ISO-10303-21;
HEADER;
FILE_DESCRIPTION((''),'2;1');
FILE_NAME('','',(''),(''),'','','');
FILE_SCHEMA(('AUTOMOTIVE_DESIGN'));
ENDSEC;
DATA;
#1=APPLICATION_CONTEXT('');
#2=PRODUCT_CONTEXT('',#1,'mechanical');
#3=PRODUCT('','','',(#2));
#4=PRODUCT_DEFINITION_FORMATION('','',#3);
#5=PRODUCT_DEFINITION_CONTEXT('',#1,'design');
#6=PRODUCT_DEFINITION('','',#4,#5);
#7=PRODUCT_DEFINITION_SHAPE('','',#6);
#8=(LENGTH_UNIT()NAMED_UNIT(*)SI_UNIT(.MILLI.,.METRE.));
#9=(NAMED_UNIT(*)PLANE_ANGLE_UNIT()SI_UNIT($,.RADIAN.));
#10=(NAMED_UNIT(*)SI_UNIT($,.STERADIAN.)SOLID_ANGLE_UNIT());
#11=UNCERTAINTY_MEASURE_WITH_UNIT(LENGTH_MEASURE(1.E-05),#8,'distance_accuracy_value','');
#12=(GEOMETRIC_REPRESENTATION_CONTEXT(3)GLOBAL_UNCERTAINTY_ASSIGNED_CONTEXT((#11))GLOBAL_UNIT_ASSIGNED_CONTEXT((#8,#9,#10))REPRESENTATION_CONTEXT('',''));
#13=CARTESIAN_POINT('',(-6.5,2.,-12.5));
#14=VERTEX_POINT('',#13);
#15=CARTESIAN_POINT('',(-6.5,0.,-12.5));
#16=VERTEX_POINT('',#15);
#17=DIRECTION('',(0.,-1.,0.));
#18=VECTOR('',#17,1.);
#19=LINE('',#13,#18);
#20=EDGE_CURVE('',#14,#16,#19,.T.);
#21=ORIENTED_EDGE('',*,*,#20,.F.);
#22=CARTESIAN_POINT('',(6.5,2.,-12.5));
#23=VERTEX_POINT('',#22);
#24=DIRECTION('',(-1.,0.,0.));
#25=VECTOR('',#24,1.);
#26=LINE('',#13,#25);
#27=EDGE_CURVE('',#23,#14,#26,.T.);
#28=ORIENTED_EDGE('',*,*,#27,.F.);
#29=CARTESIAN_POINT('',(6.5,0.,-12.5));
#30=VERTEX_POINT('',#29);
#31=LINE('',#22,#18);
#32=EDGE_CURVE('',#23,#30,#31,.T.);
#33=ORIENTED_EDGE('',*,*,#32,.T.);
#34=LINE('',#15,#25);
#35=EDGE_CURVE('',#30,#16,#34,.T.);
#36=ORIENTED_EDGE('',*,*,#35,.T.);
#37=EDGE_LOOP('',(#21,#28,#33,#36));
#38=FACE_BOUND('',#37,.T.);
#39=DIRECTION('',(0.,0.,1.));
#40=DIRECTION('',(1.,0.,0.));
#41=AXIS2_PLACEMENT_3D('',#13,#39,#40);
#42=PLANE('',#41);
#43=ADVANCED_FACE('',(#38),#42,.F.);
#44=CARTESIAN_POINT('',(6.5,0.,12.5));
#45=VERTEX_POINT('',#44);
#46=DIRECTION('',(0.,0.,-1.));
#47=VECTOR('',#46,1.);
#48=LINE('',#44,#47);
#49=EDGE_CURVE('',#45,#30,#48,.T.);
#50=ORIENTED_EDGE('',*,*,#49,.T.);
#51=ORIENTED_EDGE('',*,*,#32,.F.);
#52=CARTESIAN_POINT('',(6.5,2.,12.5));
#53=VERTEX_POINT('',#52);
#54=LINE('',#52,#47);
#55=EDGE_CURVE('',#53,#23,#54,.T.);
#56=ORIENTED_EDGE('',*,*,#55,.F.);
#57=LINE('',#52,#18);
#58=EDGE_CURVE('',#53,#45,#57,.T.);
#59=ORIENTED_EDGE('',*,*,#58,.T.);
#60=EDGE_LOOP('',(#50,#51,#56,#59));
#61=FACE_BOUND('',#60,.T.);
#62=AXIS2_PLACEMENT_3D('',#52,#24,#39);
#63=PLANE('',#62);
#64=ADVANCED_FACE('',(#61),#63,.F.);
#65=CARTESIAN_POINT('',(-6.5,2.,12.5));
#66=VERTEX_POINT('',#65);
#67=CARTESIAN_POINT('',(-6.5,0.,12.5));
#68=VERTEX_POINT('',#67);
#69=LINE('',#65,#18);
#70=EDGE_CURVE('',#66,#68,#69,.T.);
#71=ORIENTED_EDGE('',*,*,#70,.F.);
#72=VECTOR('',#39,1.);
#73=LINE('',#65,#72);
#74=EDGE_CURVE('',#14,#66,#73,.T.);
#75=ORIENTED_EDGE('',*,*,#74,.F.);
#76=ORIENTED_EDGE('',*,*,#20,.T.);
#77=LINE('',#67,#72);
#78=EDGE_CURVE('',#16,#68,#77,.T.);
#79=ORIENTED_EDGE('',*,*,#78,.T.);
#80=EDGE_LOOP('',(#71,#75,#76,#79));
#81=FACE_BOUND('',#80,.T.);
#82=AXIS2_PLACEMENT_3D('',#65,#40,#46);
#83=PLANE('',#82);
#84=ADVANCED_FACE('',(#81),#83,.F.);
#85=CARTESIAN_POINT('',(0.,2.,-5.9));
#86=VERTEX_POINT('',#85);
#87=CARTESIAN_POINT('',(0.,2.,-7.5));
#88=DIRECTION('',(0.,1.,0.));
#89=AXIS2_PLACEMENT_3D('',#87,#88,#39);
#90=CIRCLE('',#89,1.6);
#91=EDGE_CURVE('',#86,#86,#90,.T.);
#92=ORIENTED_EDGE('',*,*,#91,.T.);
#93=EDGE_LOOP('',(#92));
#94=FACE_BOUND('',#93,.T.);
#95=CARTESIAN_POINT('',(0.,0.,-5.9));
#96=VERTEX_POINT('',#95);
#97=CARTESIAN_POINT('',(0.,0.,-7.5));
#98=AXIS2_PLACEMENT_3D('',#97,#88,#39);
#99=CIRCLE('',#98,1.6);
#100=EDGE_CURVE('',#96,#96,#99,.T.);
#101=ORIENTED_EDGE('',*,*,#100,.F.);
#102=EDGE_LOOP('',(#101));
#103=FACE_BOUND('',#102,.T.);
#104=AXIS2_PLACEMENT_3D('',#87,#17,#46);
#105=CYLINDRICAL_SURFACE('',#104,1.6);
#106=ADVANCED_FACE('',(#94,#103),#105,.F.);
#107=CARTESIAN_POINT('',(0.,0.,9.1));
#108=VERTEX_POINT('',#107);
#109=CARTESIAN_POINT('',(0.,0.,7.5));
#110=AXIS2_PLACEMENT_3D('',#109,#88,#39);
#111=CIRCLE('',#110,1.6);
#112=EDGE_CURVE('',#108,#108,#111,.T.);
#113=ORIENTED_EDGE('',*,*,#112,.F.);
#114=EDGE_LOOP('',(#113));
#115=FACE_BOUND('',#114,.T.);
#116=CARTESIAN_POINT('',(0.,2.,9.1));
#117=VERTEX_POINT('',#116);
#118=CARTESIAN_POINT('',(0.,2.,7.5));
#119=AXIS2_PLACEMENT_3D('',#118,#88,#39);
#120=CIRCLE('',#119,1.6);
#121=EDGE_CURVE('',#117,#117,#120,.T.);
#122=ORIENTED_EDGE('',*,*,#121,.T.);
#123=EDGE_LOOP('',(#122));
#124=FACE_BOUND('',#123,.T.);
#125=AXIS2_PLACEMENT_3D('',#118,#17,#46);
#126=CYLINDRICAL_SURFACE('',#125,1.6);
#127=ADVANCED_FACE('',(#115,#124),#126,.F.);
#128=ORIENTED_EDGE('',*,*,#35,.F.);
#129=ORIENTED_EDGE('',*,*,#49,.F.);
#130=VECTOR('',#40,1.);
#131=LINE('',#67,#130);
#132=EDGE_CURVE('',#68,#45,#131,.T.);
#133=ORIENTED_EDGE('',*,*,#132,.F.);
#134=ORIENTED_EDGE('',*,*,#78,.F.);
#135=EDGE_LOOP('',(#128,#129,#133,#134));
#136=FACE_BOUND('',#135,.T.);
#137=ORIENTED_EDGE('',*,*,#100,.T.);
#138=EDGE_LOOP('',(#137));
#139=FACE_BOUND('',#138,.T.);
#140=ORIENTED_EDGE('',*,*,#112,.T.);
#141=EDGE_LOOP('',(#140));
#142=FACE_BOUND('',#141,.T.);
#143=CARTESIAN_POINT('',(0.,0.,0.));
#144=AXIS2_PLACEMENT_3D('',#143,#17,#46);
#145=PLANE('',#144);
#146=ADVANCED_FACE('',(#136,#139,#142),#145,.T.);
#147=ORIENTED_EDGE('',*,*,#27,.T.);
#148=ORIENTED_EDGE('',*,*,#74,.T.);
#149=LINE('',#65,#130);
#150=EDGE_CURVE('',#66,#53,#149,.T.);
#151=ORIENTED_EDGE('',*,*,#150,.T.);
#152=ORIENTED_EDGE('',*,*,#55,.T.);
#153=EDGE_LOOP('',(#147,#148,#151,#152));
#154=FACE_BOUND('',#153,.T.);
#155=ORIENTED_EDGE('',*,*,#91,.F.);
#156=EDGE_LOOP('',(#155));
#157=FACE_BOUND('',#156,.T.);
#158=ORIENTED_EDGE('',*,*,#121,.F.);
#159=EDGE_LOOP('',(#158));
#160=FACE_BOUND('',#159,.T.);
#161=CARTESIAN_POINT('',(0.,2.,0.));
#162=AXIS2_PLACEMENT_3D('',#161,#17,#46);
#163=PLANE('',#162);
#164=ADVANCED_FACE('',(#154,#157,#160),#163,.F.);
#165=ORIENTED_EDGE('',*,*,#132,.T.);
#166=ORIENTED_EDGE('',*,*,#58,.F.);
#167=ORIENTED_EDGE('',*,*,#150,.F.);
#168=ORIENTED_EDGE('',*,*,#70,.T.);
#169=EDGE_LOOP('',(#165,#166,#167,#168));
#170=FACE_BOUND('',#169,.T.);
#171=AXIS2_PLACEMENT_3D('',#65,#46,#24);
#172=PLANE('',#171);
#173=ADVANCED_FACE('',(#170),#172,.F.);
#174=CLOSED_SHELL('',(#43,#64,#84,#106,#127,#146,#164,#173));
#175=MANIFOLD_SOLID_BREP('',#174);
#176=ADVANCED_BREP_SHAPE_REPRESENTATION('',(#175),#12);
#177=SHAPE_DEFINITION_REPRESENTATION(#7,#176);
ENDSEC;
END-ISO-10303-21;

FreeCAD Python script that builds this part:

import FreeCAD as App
import Part
import Sketcher
from FreeCAD import Vector
Q = App.Units.Quantity

doc = App.newDocument("Part")
body = doc.addObject("PartDesign::Body", "Body")

# Sketch on XZ plane
sketch1 = body.newObject("Sketcher::SketchObject", "Sketch")
sketch1.AttachmentSupport = (doc.getObject("XZ_Plane"), [""])
sketch1.MapMode = "FlatFace"
sketch1.addGeometry([
    Part.LineSegment(Vector(-6.5, -12.5, 0), Vector(-6.5, 12.5, 0)),  # 0
    Part.LineSegment(Vector(-6.5, 12.5, 0), Vector(6.5, 12.5, 0)),  # 1
    Part.LineSegment(Vector(6.5, 12.5, 0), Vector(6.5, -12.5, 0)),  # 2
    Part.LineSegment(Vector(6.5, -12.5, 0), Vector(-6.5, -12.5, 0)),  # 3
    Part.Circle(Vector(0, 7.5, 0), Vector(0, 0, 1), 1.6),  # 4
    Part.Circle(Vector(0, -7.5, 0), Vector(0, 0, 1), 1.6),  # 5
], False)
sketch1.addConstraint([
    Sketcher.Constraint("Coincident", 0, 2, 1, 1),
    Sketcher.Constraint("Coincident", 1, 2, 2, 1),
    Sketcher.Constraint("Coincident", 2, 2, 3, 1),
    Sketcher.Constraint("Coincident", 3, 2, 0, 1),
    Sketcher.Constraint("Vertical", 0),
    Sketcher.Constraint("Horizontal", 1),
    Sketcher.Constraint("Vertical", 2),
    Sketcher.Constraint("Horizontal", 3),
    Sketcher.Constraint("Equal", 4, 5),
    Sketcher.Constraint("Symmetric", 4, 3, 5, 3, -1, 1),
    Sketcher.Constraint("Symmetric", 0, 2, 2, 2, -1, 1),
    Sketcher.Constraint("PointOnObject", 4, 3, -2),
    Sketcher.Constraint("Diameter", 4, Q("3.2 mm")),
    Sketcher.Constraint("DistanceX", 1, 1, 1, 2, Q("13 mm")),
    Sketcher.Constraint("DistanceY", 0, 1, 0, 2, Q("25 mm")),
    Sketcher.Constraint("DistanceY", 5, 3, 4, 3, Q("15 mm")),
])
pad1 = body.newObject("PartDesign::Pad", "Pad")
pad1.Profile = sketch1
pad1.Length = 2
pad1.Reversed = True

doc.recompute()
